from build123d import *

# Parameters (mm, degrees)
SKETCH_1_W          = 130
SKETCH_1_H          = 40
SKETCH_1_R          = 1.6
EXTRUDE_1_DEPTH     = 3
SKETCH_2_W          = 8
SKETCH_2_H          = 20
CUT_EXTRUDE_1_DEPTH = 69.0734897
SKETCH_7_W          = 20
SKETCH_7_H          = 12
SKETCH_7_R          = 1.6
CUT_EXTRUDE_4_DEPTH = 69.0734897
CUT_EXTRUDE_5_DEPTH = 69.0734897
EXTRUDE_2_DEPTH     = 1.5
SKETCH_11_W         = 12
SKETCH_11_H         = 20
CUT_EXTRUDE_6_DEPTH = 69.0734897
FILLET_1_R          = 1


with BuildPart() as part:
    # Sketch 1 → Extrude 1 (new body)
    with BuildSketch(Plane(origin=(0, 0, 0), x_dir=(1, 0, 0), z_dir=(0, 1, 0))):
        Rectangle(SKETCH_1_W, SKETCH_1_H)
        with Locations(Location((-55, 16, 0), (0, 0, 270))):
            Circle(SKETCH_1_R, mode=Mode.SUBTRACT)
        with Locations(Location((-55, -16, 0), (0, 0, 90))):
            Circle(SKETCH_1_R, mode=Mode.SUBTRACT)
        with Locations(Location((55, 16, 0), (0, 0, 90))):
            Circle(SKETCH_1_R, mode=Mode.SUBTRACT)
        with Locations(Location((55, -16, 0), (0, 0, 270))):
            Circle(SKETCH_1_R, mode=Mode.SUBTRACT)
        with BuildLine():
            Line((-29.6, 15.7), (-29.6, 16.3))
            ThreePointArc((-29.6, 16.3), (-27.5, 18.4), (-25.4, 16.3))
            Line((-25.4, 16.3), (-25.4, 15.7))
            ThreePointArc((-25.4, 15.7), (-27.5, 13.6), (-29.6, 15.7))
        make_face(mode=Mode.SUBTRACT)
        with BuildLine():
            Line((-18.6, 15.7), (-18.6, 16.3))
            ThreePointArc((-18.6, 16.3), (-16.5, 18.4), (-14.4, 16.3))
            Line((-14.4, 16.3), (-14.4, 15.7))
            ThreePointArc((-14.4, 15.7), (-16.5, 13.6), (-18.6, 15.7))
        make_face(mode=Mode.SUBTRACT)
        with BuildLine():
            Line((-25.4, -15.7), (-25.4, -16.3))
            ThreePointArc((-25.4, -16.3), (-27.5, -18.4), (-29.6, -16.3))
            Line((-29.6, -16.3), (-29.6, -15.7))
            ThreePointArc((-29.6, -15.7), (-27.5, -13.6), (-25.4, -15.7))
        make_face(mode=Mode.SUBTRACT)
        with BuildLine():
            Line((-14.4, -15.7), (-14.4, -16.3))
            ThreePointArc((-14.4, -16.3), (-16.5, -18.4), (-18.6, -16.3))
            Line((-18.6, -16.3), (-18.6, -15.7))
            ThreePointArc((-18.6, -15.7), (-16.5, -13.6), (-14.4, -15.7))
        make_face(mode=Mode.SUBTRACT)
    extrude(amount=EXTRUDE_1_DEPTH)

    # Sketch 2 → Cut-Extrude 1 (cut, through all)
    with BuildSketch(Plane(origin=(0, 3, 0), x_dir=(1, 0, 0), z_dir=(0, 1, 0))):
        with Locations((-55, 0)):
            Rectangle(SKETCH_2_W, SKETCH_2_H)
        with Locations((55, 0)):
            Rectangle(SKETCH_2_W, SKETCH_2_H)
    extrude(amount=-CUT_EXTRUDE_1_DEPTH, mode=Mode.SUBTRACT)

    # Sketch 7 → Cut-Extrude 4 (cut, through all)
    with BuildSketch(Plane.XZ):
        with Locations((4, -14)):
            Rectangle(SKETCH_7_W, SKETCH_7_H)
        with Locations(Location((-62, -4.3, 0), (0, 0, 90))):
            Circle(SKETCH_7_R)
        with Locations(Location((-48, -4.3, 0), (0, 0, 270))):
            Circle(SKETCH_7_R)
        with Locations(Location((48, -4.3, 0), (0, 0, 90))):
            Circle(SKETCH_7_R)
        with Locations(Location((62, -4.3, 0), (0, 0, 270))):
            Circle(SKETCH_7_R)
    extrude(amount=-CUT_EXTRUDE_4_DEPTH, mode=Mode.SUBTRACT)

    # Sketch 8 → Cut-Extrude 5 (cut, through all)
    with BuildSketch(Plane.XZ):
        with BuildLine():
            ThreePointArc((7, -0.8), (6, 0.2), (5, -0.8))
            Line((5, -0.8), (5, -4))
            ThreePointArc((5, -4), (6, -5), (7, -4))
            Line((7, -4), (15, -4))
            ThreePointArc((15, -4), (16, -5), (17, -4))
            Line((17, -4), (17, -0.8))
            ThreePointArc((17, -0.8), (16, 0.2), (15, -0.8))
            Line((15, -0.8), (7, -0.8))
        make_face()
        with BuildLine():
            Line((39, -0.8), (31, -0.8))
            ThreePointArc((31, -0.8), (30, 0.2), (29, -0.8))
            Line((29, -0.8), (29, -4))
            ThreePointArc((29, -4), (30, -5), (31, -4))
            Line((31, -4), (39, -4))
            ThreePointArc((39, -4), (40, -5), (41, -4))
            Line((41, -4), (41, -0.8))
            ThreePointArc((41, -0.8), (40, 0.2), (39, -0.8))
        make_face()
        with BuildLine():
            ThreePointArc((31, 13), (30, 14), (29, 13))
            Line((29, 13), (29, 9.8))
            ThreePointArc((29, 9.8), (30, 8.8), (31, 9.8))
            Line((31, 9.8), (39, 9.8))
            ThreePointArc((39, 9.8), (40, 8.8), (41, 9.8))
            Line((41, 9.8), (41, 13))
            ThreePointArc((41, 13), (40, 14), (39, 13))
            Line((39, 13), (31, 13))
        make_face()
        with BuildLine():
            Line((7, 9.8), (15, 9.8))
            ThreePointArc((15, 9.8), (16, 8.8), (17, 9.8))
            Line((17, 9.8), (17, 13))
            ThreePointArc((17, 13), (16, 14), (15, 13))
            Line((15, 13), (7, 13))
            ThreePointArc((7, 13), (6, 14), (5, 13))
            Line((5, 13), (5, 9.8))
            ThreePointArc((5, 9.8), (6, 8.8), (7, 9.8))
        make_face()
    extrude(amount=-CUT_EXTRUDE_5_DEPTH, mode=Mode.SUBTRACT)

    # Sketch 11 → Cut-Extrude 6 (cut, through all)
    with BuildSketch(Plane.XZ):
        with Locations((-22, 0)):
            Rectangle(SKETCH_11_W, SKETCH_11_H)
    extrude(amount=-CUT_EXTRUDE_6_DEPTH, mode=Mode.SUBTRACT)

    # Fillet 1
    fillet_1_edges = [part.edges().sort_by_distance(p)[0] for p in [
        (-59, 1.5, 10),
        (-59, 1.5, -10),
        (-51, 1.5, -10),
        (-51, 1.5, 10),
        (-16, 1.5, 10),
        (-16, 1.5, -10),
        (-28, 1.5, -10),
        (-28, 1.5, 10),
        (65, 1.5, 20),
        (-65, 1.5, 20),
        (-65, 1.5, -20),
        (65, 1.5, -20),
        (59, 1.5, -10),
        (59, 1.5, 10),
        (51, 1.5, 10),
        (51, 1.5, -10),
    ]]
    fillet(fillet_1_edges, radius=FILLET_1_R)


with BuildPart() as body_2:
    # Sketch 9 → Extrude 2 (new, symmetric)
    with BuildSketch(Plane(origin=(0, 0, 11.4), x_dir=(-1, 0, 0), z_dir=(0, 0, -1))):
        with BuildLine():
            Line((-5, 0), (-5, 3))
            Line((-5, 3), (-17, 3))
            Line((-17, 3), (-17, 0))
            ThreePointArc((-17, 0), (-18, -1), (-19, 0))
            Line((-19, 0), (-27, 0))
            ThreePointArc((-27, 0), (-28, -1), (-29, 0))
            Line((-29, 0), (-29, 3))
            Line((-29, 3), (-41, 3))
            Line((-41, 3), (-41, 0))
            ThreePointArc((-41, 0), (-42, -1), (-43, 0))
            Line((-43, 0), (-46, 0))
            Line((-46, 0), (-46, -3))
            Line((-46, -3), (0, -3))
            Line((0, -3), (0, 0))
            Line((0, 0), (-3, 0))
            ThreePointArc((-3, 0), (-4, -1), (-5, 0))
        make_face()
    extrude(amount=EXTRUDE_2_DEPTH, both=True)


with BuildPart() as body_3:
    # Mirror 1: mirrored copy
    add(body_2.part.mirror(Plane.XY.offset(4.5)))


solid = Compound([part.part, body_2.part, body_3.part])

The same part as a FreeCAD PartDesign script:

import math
import FreeCAD as App
import Part
import Sketcher
from FreeCAD import Vector


def edges_at(feature, points):
    """Names of the edges that pass closest to the given points."""
    edges = feature.Shape.Edges
    near = lambda p: min(range(len(edges)), key=lambda i: edges[i].distToShape(Part.Vertex(*p))[0])
    return sorted({f"Edge{near(p) + 1}" for p in points})


def add_polygon(sketch, points):
    """Adds a closed chain of lines whose ends are joined by coincident constraints."""
    first, n = sketch.GeometryCount, len(points)
    for a, b in zip(points, points[1:] + points[:1]):
        sketch.addGeometry(Part.LineSegment(App.Vector(*a, 0), App.Vector(*b, 0)), False)
    for i in range(n):
        sketch.addConstraint(Sketcher.Constraint("Coincident", first + i, 2, first + (i + 1) % n, 1))

doc = App.newDocument("Part")
body = doc.addObject("PartDesign::Body", "Body")

# Sketch on XZ plane
sketch1 = body.newObject("Sketcher::SketchObject", "Sketch")
sketch1.AttachmentSupport = (doc.getObject("XZ_Plane"), [""])
sketch1.MapMode = "FlatFace"
add_polygon(sketch1, [(-65, -20), (-65, 20), (65, 20), (65, -20)])  # lines 0-3
sketch1.addGeometry(Part.Circle(Vector(-55, 16, 0), Vector(0, 0, 1), 1.6), False)  # 4
sketch1.addGeometry(Part.ArcOfCircle(Part.Circle(Vector(-27.5, 15.7, 0), Vector(0, 0, 1), 2.1), math.radians(180), math.radians(360)), False)  # 5
sketch1.addGeometry(Part.LineSegment(Vector(-25.4, 15.7, 0), Vector(-25.4, 16.3, 0)), False)  # 6
sketch1.addGeometry(Part.ArcOfCircle(Part.Circle(Vector(-27.5, 16.3, 0), Vector(0, 0, 1), 2.1), math.radians(0), math.radians(180)), False)  # 7
sketch1.addGeometry(Part.LineSegment(Vector(-29.6, 16.3, 0), Vector(-29.6, 15.7, 0)), False)  # 8
sketch1.addGeometry(Part.ArcOfCircle(Part.Circle(Vector(-16.5, 15.7, 0), Vector(0, 0, 1), 2.1), math.radians(180), math.radians(360)), False)  # 9
sketch1.addGeometry(Part.LineSegment(Vector(-14.4, 15.7, 0), Vector(-14.4, 16.3, 0)), False)  # 10
sketch1.addGeometry(Part.ArcOfCircle(Part.Circle(Vector(-16.5, 16.3, 0), Vector(0, 0, 1), 2.1), math.radians(0), math.radians(180)), False)  # 11
sketch1.addGeometry(Part.LineSegment(Vector(-18.6, 16.3, 0), Vector(-18.6, 15.7, 0)), False)  # 12
sketch1.addGeometry(Part.Circle(Vector(55, 16, 0), Vector(0, 0, 1), 1.6), False)  # 13
sketch1.addGeometry(Part.Circle(Vector(-55, -16, 0), Vector(0, 0, 1), 1.6), False)  # 14
sketch1.addGeometry(Part.ArcOfCircle(Part.Circle(Vector(-27.5, -15.7, 0), Vector(0, 0, 1), 2.1), math.radians(0), math.radians(180)), False)  # 15
sketch1.addGeometry(Part.LineSegment(Vector(-29.6, -15.7, 0), Vector(-29.6, -16.3, 0)), False)  # 16
sketch1.addGeometry(Part.ArcOfCircle(Part.Circle(Vector(-27.5, -16.3, 0), Vector(0, 0, 1), 2.1), math.radians(180), math.radians(360)), False)  # 17
sketch1.addGeometry(Part.LineSegment(Vector(-25.4, -16.3, 0), Vector(-25.4, -15.7, 0)), False)  # 18
sketch1.addGeometry(Part.ArcOfCircle(Part.Circle(Vector(-16.5, -15.7, 0), Vector(0, 0, 1), 2.1), math.radians(0), math.radians(180)), False)  # 19
sketch1.addGeometry(Part.LineSegment(Vector(-18.6, -15.7, 0), Vector(-18.6, -16.3, 0)), False)  # 20
sketch1.addGeometry(Part.ArcOfCircle(Part.Circle(Vector(-16.5, -16.3, 0), Vector(0, 0, 1), 2.1), math.radians(180), math.radians(360)), False)  # 21
sketch1.addGeometry(Part.LineSegment(Vector(-14.4, -16.3, 0), Vector(-14.4, -15.7, 0)), False)  # 22
sketch1.addGeometry(Part.Circle(Vector(55, -16, 0), Vector(0, 0, 1), 1.6), False)  # 23
sketch1.addConstraint([
    Sketcher.Constraint("Tangent", 5, 2, 6, 1),
    Sketcher.Constraint("Tangent", 6, 2, 7, 1),
    Sketcher.Constraint("Tangent", 7, 2, 8, 1),
    Sketcher.Constraint("Tangent", 8, 2, 5, 1),
    Sketcher.Constraint("Tangent", 9, 2, 10, 1),
    Sketcher.Constraint("Tangent", 10, 2, 11, 1),
    Sketcher.Constraint("Tangent", 11, 2, 12, 1),
    Sketcher.Constraint("Tangent", 12, 2, 9, 1),
    Sketcher.Constraint("Tangent", 15, 2, 16, 1),
    Sketcher.Constraint("Tangent", 16, 2, 17, 1),
    Sketcher.Constraint("Tangent", 17, 2, 18, 1),
    Sketcher.Constraint("Tangent", 18, 2, 15, 1),
    Sketcher.Constraint("Tangent", 19, 2, 20, 1),
    Sketcher.Constraint("Tangent", 20, 2, 21, 1),
    Sketcher.Constraint("Tangent", 21, 2, 22, 1),
    Sketcher.Constraint("Tangent", 22, 2, 19, 1),
    Sketcher.Constraint("Vertical", 0),
    Sketcher.Constraint("Horizontal", 1),
    Sketcher.Constraint("Vertical", 2),
    Sketcher.Constraint("Horizontal", 3),
    Sketcher.Constraint("Vertical", 6),
    Sketcher.Constraint("Vertical", 8),
    Sketcher.Constraint("Vertical", 10),
    Sketcher.Constraint("Vertical", 12),
    Sketcher.Constraint("Vertical", 16),
    Sketcher.Constraint("Vertical", 18),
    Sketcher.Constraint("Vertical", 20),
    Sketcher.Constraint("Vertical", 22),
    Sketcher.Constraint("Equal", 7, 9),
    Sketcher.Constraint("Equal", 4, 13),
    Sketcher.Constraint("Equal", 13, 14),
    Sketcher.Constraint("Equal", 11, 15),
    Sketcher.Constraint("Equal", 17, 19),
    Sketcher.Constraint("Equal", 14, 23),
    Sketcher.Constraint("Symmetric", 13, 3, 14, 3, -1, 1),
    Sketcher.Constraint("Symmetric", 4, 3, 23, 3, -1, 1),
    Sketcher.Constraint("Symmetric", 0, 2, 2, 2, -1, 1),
    Sketcher.Constraint("Symmetric", 4, 3, 13, 3, -2),
    Sketcher.Constraint("Symmetric", 5, 3, 15, 3, -1),
    Sketcher.Constraint("Symmetric", 9, 3, 19, 3, -1),
    Sketcher.Constraint("Horizontal", 5, 3, 9, 3),
    Sketcher.Constraint("Horizontal", 7, 3, 11, 3),
    Sketcher.Constraint("Horizontal", 17, 3, 21, 3),
    Sketcher.Constraint("Equal", 12, 16),
    Sketcher.Constraint("Diameter", 4, 3.2),
    Sketcher.Constraint("Radius", 5, 2.1),
    Sketcher.Constraint("DistanceX", 1, 1, 1, 2, 130.0),
    Sketcher.Constraint("DistanceY", 0, 1, 0, 2, 40.0),
    Sketcher.Constraint("DistanceY", 6, 1, 6, 2, 0.6),
    Sketcher.Constraint("DistanceX", 4, 3, -1, 1, 55.0),
    Sketcher.Constraint("DistanceY", -1, 1, 4, 3, 16.0),
    Sketcher.Constraint("DistanceX", 5, 3, 9, 3, 11.0),
    Sketcher.Constraint("DistanceY", 15, 3, 7, 3, 32.0),
    Sketcher.Constraint("DistanceX", 5, 3, -1, 1, 27.5),
])
pad1 = body.newObject("PartDesign::Pad", "Pad")
pad1.Profile = sketch1
pad1.Length = 3
pad1.Reversed = True

# Sketch on XZ plane
sketch2 = body.newObject("Sketcher::SketchObject", "Sketch001")
sketch2.AttachmentSupport = (doc.getObject("XZ_Plane"), [""])
sketch2.MapMode = "FlatFace"
sketch2.AttachmentOffset = App.Placement(Vector(0, 0, -3), App.Rotation())
add_polygon(sketch2, [(-59, -10), (-59, 10), (-51, 10), (-51, -10)])  # lines 0-3
add_polygon(sketch2, [(51, -10), (51, 10), (59, 10), (59, -10)])  # lines 4-7
sketch2.addConstraint([
    Sketcher.Constraint("Vertical", 0),
    Sketcher.Constraint("Horizontal", 1),
    Sketcher.Constraint("Vertical", 2),
    Sketcher.Constraint("Horizontal", 3),
    Sketcher.Constraint("Vertical", 4),
    Sketcher.Constraint("Horizontal", 5),
    Sketcher.Constraint("Vertical", 6),
    Sketcher.Constraint("Horizontal", 7),
    Sketcher.Constraint("Symmetric", 2, 2, 4, 2, -1, 1),
    Sketcher.Constraint("Symmetric", 0, 2, 6, 2, -1, 1),
    Sketcher.Constraint("Horizontal", 1, 2, 4, 2),
    Sketcher.Constraint("DistanceX", 1, 1, 1, 2, 8.0),
    Sketcher.Constraint("DistanceY", 0, 1, 0, 2, 20.0),
    Sketcher.Constraint("DistanceX", 0, 2, -1, 1, 59.0),
])
pocket1 = body.newObject("PartDesign::Pocket", "Pocket")
pocket1.Profile = sketch2
pocket1.Type = "ThroughAll"
pocket1.Reversed = True

# Sketch on XZ plane
sketch3 = body.newObject("Sketcher::SketchObject", "Sketch002")
sketch3.AttachmentSupport = (doc.getObject("XZ_Plane"), [""])
sketch3.MapMode = "FlatFace"
add_polygon(sketch3, [(-6, -8), (-6, -20), (14, -20), (14, -8)])  # lines 0-3
sketch3.addGeometry(Part.Circle(Vector(-62, -4.3, 0), Vector(0, 0, 1), 1.6), False)  # 4
sketch3.addGeometry(Part.Circle(Vector(-48, -4.3, 0), Vector(0, 0, 1), 1.6), False)  # 5
sketch3.addGeometry(Part.Circle(Vector(48, -4.3, 0), Vector(0, 0, 1), 1.6), False)  # 6
sketch3.addGeometry(Part.Circle(Vector(62, -4.3, 0), Vector(0, 0, 1), 1.6), False)  # 7
sketch3.addConstraint([
    Sketcher.Constraint("Vertical", 0),
    Sketcher.Constraint("Horizontal", 1),
    Sketcher.Constraint("Vertical", 2),
    Sketcher.Constraint("Horizontal", 3),
    Sketcher.Constraint("Equal", 4, 5),
    Sketcher.Constraint("Equal", 5, 6),
    Sketcher.Constraint("Equal", 6, 7),
    Sketcher.Constraint("Symmetric", 5, 3, 6, 3, -2),
    Sketcher.Constraint("Symmetric", 4, 3, 7, 3, -2),
    Sketcher.Constraint("Horizontal", 4, 3, 5, 3),
    Sketcher.Constraint("Diameter", 4, 3.2),
    Sketcher.Constraint("DistanceX", 1, 1, 1, 2, 20.0),
    Sketcher.Constraint("DistanceY", 0, 2, 0, 1, 12.0),
    Sketcher.Constraint("DistanceX", 4, 3, -1, 1, 62.0),
    Sketcher.Constraint("DistanceX", 5, 3, -1, 1, 48.0),
    Sketcher.Constraint("DistanceX", 0, 2, -1, 1, 6.0),
    Sketcher.Constraint("DistanceY", 0, 2, -1, 1, 20.0),
    Sketcher.Constraint("DistanceY", 4, 3, -1, 1, 4.3),
])
pocket2 = body.newObject("PartDesign::Pocket", "Pocket001")
pocket2.Profile = sketch3
pocket2.Type = "ThroughAll"

# Sketch on XZ plane
sketch4 = body.newObject("Sketcher::SketchObject", "Sketch003")
sketch4.AttachmentSupport = (doc.getObject("XZ_Plane"), [""])
sketch4.MapMode = "FlatFace"
sketch4.addGeometry([
    Part.ArcOfCircle(Part.Circle(Vector(6, -0.8, 0), Vector(0, 0, 1), 1), math.radians(0), math.radians(180)),  # 0
    Part.LineSegment(Vector(5, -0.8, 0), Vector(5, -4, 0)),  # 1
    Part.ArcOfCircle(Part.Circle(Vector(6, -4, 0), Vector(0, 0, 1), 1), math.radians(180), math.radians(360)),  # 2
    Part.LineSegment(Vector(7, -4, 0), Vector(15, -4, 0)),  # 3
    Part.ArcOfCircle(Part.Circle(Vector(16, -4, 0), Vector(0, 0, 1), 1), math.radians(180), math.radians(360)),  # 4
    Part.LineSegment(Vector(17, -4, 0), Vector(17, -0.8, 0)),  # 5
    Part.ArcOfCircle(Part.Circle(Vector(16, -0.8, 0), Vector(0, 0, 1), 1), math.radians(0), math.radians(180)),  # 6
    Part.LineSegment(Vector(15, -0.8, 0), Vector(7, -0.8, 0)),  # 7
    Part.LineSegment(Vector(39, -0.8, 0), Vector(31, -0.8, 0)),  # 8
    Part.ArcOfCircle(Part.Circle(Vector(30, -0.8, 0), Vector(0, 0, 1), 1), math.radians(0), math.radians(180)),  # 9
    Part.LineSegment(Vector(29, -0.8, 0), Vector(29, -4, 0)),  # 10
    Part.ArcOfCircle(Part.Circle(Vector(30, -4, 0), Vector(0, 0, 1), 1), math.radians(180), math.radians(360)),  # 11
    Part.LineSegment(Vector(31, -4, 0), Vector(39, -4, 0)),  # 12
    Part.ArcOfCircle(Part.Circle(Vector(40, -4, 0), Vector(0, 0, 1), 1), math.radians(180), math.radians(360)),  # 13
    Part.LineSegment(Vector(41, -4, 0), Vector(41, -0.8, 0)),  # 14
    Part.ArcOfCircle(Part.Circle(Vector(40, -0.8, 0), Vector(0, 0, 1), 1), math.radians(0), math.radians(180)),  # 15
    Part.ArcOfCircle(Part.Circle(Vector(30, 13, 0), Vector(0, 0, 1), 1), math.radians(0), math.radians(180)),  # 16
    Part.LineSegment(Vector(29, 13, 0), Vector(29, 9.8, 0)),  # 17
    Part.ArcOfCircle(Part.Circle(Vector(30, 9.8, 0), Vector(0, 0, 1), 1), math.radians(180), math.radians(360)),  # 18
    Part.LineSegment(Vector(31, 9.8, 0), Vector(39, 9.8, 0)),  # 19
    Part.ArcOfCircle(Part.Circle(Vector(40, 9.8, 0), Vector(0, 0, 1), 1), math.radians(180), math.radians(360)),  # 20
    Part.LineSegment(Vector(41, 9.8, 0), Vector(41, 13, 0)),  # 21
    Part.ArcOfCircle(Part.Circle(Vector(40, 13, 0), Vector(0, 0, 1), 1), math.radians(0), math.radians(180)),  # 22
    Part.LineSegment(Vector(39, 13, 0), Vector(31, 13, 0)),  # 23
    Part.LineSegment(Vector(7, 9.8, 0), Vector(15, 9.8, 0)),  # 24
    Part.ArcOfCircle(Part.Circle(Vector(16, 9.8, 0), Vector(0, 0, 1), 1), math.radians(180), math.radians(360)),  # 25
    Part.LineSegment(Vector(17, 9.8, 0), Vector(17, 13, 0)),  # 26
    Part.ArcOfCircle(Part.Circle(Vector(16, 13, 0), Vector(0, 0, 1), 1), math.radians(0), math.radians(180)),  # 27
    Part.LineSegment(Vector(15, 13, 0), Vector(7, 13, 0)),  # 28
    Part.ArcOfCircle(Part.Circle(Vector(6, 13, 0), Vector(0, 0, 1), 1), math.radians(0), math.radians(180)),  # 29
    Part.LineSegment(Vector(5, 13, 0), Vector(5, 9.8, 0)),  # 30
    Part.ArcOfCircle(Part.Circle(Vector(6, 9.8, 0), Vector(0, 0, 1), 1), math.radians(180), math.radians(360)),  # 31
], False)
sketch4.addConstraint([
    Sketcher.Constraint("Tangent", 0, 2, 1, 1),
    Sketcher.Constraint("Tangent", 1, 2, 2, 1),
    Sketcher.Constraint("Coincident", 2, 2, 3, 1),
    Sketcher.Constraint("Coincident", 3, 2, 4, 1),
    Sketcher.Constraint("Tangent", 4, 2, 5, 1),
    Sketcher.Constraint("Tangent", 5, 2, 6, 1),
    Sketcher.Constraint("Coincident", 6, 2, 7, 1),
    Sketcher.Constraint("Coincident", 7, 2, 0, 1),
    Sketcher.Constraint("Coincident", 8, 2, 9, 1),
    Sketcher.Constraint("Tangent", 9, 2, 10, 1),
    Sketcher.Constraint("Tangent", 10, 2, 11, 1),
    Sketcher.Constraint("Coincident", 11, 2, 12, 1),
    Sketcher.Constraint("Coincident", 12, 2, 13, 1),
    Sketcher.Constraint("Tangent", 13, 2, 14, 1),
    Sketcher.Constraint("Tangent", 14, 2, 15, 1),
    Sketcher.Constraint("Coincident", 15, 2, 8, 1),
    Sketcher.Constraint("Tangent", 16, 2, 17, 1),
    Sketcher.Constraint("Tangent", 17, 2, 18, 1),
    Sketcher.Constraint("Coincident", 18, 2, 19, 1),
    Sketcher.Constraint("Coincident", 19, 2, 20, 1),
    Sketcher.Constraint("Tangent", 20, 2, 21, 1),
    Sketcher.Constraint("Tangent", 21, 2, 22, 1),
    Sketcher.Constraint("Coincident", 22, 2, 23, 1),
    Sketcher.Constraint("Coincident", 23, 2, 16, 1),
    Sketcher.Constraint("Coincident", 24, 2, 25, 1),
    Sketcher.Constraint("Tangent", 25, 2, 26, 1),
    Sketcher.Constraint("Tangent", 26, 2, 27, 1),
    Sketcher.Constraint("Coincident", 27, 2, 28, 1),
    Sketcher.Constraint("Coincident", 28, 2, 29, 1),
    Sketcher.Constraint("Tangent", 29, 2, 30, 1),
    Sketcher.Constraint("Tangent", 30, 2, 31, 1),
    Sketcher.Constraint("Coincident", 31, 2, 24, 1),
    Sketcher.Constraint("Vertical", 1),
    Sketcher.Constraint("Horizontal", 3),
    Sketcher.Constraint("Vertical", 5),
    Sketcher.Constraint("Horizontal", 7),
    Sketcher.Constraint("Horizontal", 8),
    Sketcher.Constraint("Vertical", 10),
    Sketcher.Constraint("Horizontal", 12),
    Sketcher.Constraint("Vertical", 14),
    Sketcher.Constraint("Vertical", 17),
    Sketcher.Constraint("Horizontal", 19),
    Sketcher.Constraint("Vertical", 21),
    Sketcher.Constraint("Horizontal", 23),
    Sketcher.Constraint("Horizontal", 24),
    Sketcher.Constraint("Vertical", 26),
    Sketcher.Constraint("Horizontal", 28),
    Sketcher.Constraint("Vertical", 30),
    Sketcher.Constraint("Equal", 0, 2),
    Sketcher.Constraint("Equal", 2, 4),
    Sketcher.Constraint("Equal", 4, 6),
    Sketcher.Constraint("Equal", 6, 9),
    Sketcher.Constraint("Equal", 9, 11),
    Sketcher.Constraint("Equal", 11, 13),
    Sketcher.Constraint("Equal", 13, 15),
    Sketcher.Constraint("Equal", 15, 16),
    Sketcher.Constraint("Equal", 16, 18),
    Sketcher.Constraint("Equal", 18, 20),
    Sketcher.Constraint("Equal", 20, 22),
    Sketcher.Constraint("Equal", 22, 25),
    Sketcher.Constraint("Equal", 25, 27),
    Sketcher.Constraint("Equal", 27, 29),
    Sketcher.Constraint("Equal", 29, 31),
    Sketcher.Constraint("Horizontal", 2, 3, 4, 3),
    Sketcher.Constraint("Horizontal", 0, 3, 6, 3),
    Sketcher.Constraint("Horizontal", 6, 3, 9, 3),
    Sketcher.Constraint("Horizontal", 4, 3, 11, 3),
    Sketcher.Constraint("Horizontal", 11, 3, 13, 3),
    Sketcher.Constraint("Horizontal", 9, 3, 15, 3),
    Sketcher.Constraint("Horizontal", 18, 3, 20, 3),
    Sketcher.Constraint("Horizontal", 16, 3, 22, 3),
    Sketcher.Constraint("Horizontal", 20, 3, 25, 3),
    Sketcher.Constraint("Horizontal", 22, 3, 27, 3),
    Sketcher.Constraint("Horizontal", 27, 3, 29, 3),
    Sketcher.Constraint("Horizontal", 25, 3, 31, 3),
    Sketcher.Constraint("Horizontal", 1, 2, 2, 2),
    Sketcher.Constraint("Horizontal", 5, 2, 6, 2),
    Sketcher.Constraint("Horizontal", 7, 2, 8, 2),
    Sketcher.Constraint("Horizontal", 10, 2, 11, 2),
    Sketcher.Constraint("Horizontal", 17, 2, 18, 2),
    Sketcher.Constraint("Horizontal", 21, 2, 22, 2),
    Sketcher.Constraint("Horizontal", 20, 2, 24, 2),
    Sketcher.Constraint("Horizontal", 26, 2, 27, 2),
    Sketcher.Constraint("Vertical", 11, 3, 16, 3),
    Sketcher.Constraint("Vertical", 15, 3, 20, 3),
    Sketcher.Constraint("Vertical", 6, 3, 25, 3),
    Sketcher.Constraint("Vertical", 2, 3, 29, 3),
    Sketcher.Constraint("Equal", 7, 8),
    Sketcher.Constraint("Equal", 14, 17),
    Sketcher.Constraint("Radius", 0, 1.0),
    Sketcher.Constraint("DistanceX", 3, 1, 3, 2, 8.0),
    Sketcher.Constraint("DistanceY", 1, 2, 1, 1, 3.2),
    Sketcher.Constraint("DistanceX", -1, 1, 0, 3, 6.0),
    Sketcher.Constraint("DistanceY", 2, 3, -1, 1, 4.0),
    Sketcher.Constraint("DistanceX", -1, 1, 9, 3, 30.0),
    Sketcher.Constraint("DistanceY", -1, 1, 16, 3, 13.0),
])
pocket3 = body.newObject("PartDesign::Pocket", "Pocket002")
pocket3.Profile = sketch4
pocket3.Type = "ThroughAll"

# Sketch on XZ plane
sketch5 = body.newObject("Sketcher::SketchObject", "Sketch004")
sketch5.AttachmentSupport = (doc.getObject("XZ_Plane"), [""])
sketch5.MapMode = "FlatFace"
add_polygon(sketch5, [(-28, 10), (-28, -10), (-16, -10), (-16, 10)])  # lines 0-3
sketch5.addConstraint([
    Sketcher.Constraint("Vertical", 0),
    Sketcher.Constraint("Horizontal", 1),
    Sketcher.Constraint("Vertical", 2),
    Sketcher.Constraint("Horizontal", 3),
    Sketcher.Constraint("DistanceX", 1, 1, 1, 2, 12.0),
    Sketcher.Constraint("DistanceY", 0, 2, 0, 1, 20.0),
    Sketcher.Constraint("DistanceX", 0, 2, -1, 1, 28.0),
    Sketcher.Constraint("DistanceY", 0, 2, -1, 1, 10.0),
])
pocket4 = body.newObject("PartDesign::Pocket", "Pocket003")
pocket4.Profile = sketch5
pocket4.Type = "ThroughAll"
doc.recompute()

fillet = body.newObject("PartDesign::Fillet", "Fillet")
fillet.Base = (pocket4, edges_at(pocket4, [
    (-59, 1.5, 10),
    (-59, 1.5, -10),
    (-51, 1.5, -10),
    (-51, 1.5, 10),
    (-16, 1.5, 10),
    (-16, 1.5, -10),
    (-28, 1.5, -10),
    (-28, 1.5, 10),
    (65, 1.5, 20),
    (-65, 1.5, 20),
    (-65, 1.5, -20),
    (65, 1.5, -20),
    (59, 1.5, -10),
    (59, 1.5, 10),
    (51, 1.5, 10),
    (51, 1.5, -10),
]))
fillet.Radius = 1
body2 = doc.addObject("PartDesign::Body", "Body001")

# Sketch on XY plane
sketch6 = body2.newObject("Sketcher::SketchObject", "Sketch005")
sketch6.AttachmentSupport = (doc.getObject("XY_Plane001"), [""])
sketch6.MapMode = "FlatFace"
sketch6.AttachmentOffset = App.Placement(Vector(0, 0, 11.4), App.Rotation())
sketch6.addGeometry([
    Part.LineSegment(Vector(5, 0, 0), Vector(5, 3, 0)),  # 0
    Part.LineSegment(Vector(5, 3, 0), Vector(17, 3, 0)),  # 1
    Part.LineSegment(Vector(17, 3, 0), Vector(17, 0, 0)),  # 2
    Part.ArcOfCircle(Part.Circle(Vector(18, 0, 0), Vector(0, 0, 1), 1), math.radians(180), math.radians(360)),  # 3
    Part.LineSegment(Vector(19, 0, 0), Vector(27, 0, 0)),  # 4
    Part.ArcOfCircle(Part.Circle(Vector(28, 0, 0), Vector(0, 0, 1), 1), math.radians(180), math.radians(360)),  # 5
    Part.LineSegment(Vector(29, 0, 0), Vector(29, 3, 0)),  # 6
    Part.LineSegment(Vector(29, 3, 0), Vector(41, 3, 0)),  # 7
    Part.LineSegment(Vector(41, 3, 0), Vector(41, 0, 0)),  # 8
    Part.ArcOfCircle(Part.Circle(Vector(42, 0, 0), Vector(0, 0, 1), 1), math.radians(180), math.radians(360)),  # 9
    Part.LineSegment(Vector(43, 0, 0), Vector(46, 0, 0)),  # 10
    Part.LineSegment(Vector(46, 0, 0), Vector(46, -3, 0)),  # 11
    Part.LineSegment(Vector(46, -3, 0), Vector(0, -3, 0)),  # 12
    Part.LineSegment(Vector(0, -3, 0), Vector(0, 0, 0)),  # 13
    Part.LineSegment(Vector(0, 0, 0), Vector(3, 0, 0)),  # 14
    Part.ArcOfCircle(Part.Circle(Vector(4, 0, 0), Vector(0, 0, 1), 1), math.radians(180), math.radians(360)),  # 15
], False)
sketch6.addConstraint([
    Sketcher.Constraint("Coincident", 0, 2, 1, 1),
    Sketcher.Constraint("Coincident", 1, 2, 2, 1),
    Sketcher.Constraint("Tangent", 2, 2, 3, 1),
    Sketcher.Constraint("Coincident", 3, 2, 4, 1),
    Sketcher.Constraint("Coincident", 4, 2, 5, 1),
    Sketcher.Constraint("Tangent", 5, 2, 6, 1),
    Sketcher.Constraint("Coincident", 6, 2, 7, 1),
    Sketcher.Constraint("Coincident", 7, 2, 8, 1),
    Sketcher.Constraint("Tangent", 8, 2, 9, 1),
    Sketcher.Constraint("Coincident", 9, 2, 10, 1),
    Sketcher.Constraint("Coincident", 10, 2, 11, 1),
    Sketcher.Constraint("Coincident", 11, 2, 12, 1),
    Sketcher.Constraint("Coincident", 12, 2, 13, 1),
    Sketcher.Constraint("Coincident", 13, 2, 14, 1),
    Sketcher.Constraint("Coincident", 14, 2, 15, 1),
    Sketcher.Constraint("Tangent", 15, 2, 0, 1),
    Sketcher.Constraint("Vertical", 0),
    Sketcher.Constraint("Horizontal", 1),
    Sketcher.Constraint("Vertical", 2),
    Sketcher.Constraint("Horizontal", 4),
    Sketcher.Constraint("Vertical", 6),
    Sketcher.Constraint("Horizontal", 7),
    Sketcher.Constraint("Vertical", 8),
    Sketcher.Constraint("Horizontal", 10),
    Sketcher.Constraint("Vertical", 11),
    Sketcher.Constraint("Horizontal", 12),
    Sketcher.Constraint("Vertical", 13),
    Sketcher.Constraint("Horizontal", 14),
    Sketcher.Constraint("Coincident", 13, 2, -1, 1),
    Sketcher.Constraint("Equal", 3, 5),
    Sketcher.Constraint("Equal", 5, 9),
    Sketcher.Constraint("Equal", 9, 15),
    Sketcher.Constraint("PointOnObject", 3, 3, -1),
    Sketcher.Constraint("PointOnObject", 5, 3, -1),
    Sketcher.Constraint("PointOnObject", 9, 3, -1),
    Sketcher.Constraint("PointOnObject", 15, 3, -1),
    Sketcher.Constraint("PointOnObject", 3, 2, -1),
    Sketcher.Constraint("PointOnObject", 9, 2, -1),
    Sketcher.Constraint("Horizontal", 1, 2, 6, 2),
    Sketcher.Constraint("Equal", 1, 7),
    Sketcher.Constraint("Equal", 10, 14),
    Sketcher.Constraint("Equal", 14, 0),
    Sketcher.Constraint("Equal", 8, 11),
    Sketcher.Constraint("Radius", 3, 1.0),
    Sketcher.Constraint("DistanceX", 1, 1, 1, 2, 12.0),
    Sketcher.Constraint("DistanceX", 4, 1, 4, 2, 8.0),
    Sketcher.Constraint("DistanceX", 10, 1, 10, 2, 3.0),
])
pad2 = body2.newObject("PartDesign::Pad", "Pad001")
pad2.Profile = sketch6
pad2.Length = 3
pad2.Midplane = True
body3 = doc.addObject("PartDesign::Body", "Body002")
doc.recompute()

mirroring = doc.addObject("Part::Mirroring", "Mirroring")
mirroring.Source = body2
mirroring.Base = Vector(0, 0, 4.5)
mirroring.Normal = Vector(0, 0, 1)
body3.BaseFeature = mirroring
doc.recompute()
mirroring.Visibility = False

doc.recompute()
